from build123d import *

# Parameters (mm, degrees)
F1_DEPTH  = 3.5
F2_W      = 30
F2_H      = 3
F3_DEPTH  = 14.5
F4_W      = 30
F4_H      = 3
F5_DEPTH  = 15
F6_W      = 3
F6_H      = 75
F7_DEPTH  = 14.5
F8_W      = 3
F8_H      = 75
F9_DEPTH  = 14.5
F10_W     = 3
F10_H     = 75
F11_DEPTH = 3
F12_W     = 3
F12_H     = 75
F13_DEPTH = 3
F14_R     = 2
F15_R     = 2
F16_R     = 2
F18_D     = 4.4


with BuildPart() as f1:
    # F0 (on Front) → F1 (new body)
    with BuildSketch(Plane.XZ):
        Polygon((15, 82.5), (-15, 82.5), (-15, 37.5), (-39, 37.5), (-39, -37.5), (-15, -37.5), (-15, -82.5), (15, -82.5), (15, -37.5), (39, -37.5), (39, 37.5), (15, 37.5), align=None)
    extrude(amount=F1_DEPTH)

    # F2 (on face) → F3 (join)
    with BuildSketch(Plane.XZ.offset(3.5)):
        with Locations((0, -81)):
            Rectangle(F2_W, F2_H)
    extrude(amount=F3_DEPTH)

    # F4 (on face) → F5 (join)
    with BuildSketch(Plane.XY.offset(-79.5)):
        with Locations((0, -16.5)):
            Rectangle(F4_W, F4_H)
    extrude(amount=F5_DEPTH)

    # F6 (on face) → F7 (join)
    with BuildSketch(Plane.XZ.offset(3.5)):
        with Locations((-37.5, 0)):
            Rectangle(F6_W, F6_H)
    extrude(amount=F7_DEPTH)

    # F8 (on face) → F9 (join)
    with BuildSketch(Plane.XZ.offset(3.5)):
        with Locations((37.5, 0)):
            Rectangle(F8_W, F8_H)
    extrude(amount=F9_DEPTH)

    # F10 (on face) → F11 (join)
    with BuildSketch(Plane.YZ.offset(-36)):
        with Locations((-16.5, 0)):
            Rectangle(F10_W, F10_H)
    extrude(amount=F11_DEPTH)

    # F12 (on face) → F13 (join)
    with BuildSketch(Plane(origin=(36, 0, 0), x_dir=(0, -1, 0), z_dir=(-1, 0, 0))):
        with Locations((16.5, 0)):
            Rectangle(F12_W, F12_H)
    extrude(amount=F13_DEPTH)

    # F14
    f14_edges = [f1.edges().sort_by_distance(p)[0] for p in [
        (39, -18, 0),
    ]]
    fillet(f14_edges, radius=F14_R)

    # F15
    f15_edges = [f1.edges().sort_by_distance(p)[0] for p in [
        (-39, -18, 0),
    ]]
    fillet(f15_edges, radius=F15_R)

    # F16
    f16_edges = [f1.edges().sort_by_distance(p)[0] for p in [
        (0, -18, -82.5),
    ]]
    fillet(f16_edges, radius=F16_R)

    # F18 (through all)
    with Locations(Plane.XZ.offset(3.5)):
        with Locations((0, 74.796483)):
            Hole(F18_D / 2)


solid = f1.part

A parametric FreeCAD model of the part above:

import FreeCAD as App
import Part
import Sketcher

V = App.Vector


def edges_at(feature, points):
    """Names of the edges that pass closest to the given points."""
    edges = feature.Shape.Edges
    near = lambda p: min(range(len(edges)), key=lambda i: edges[i].distToShape(Part.Vertex(*p))[0])
    return sorted({f"Edge{near(p) + 1}" for p in points})

doc = App.newDocument("Part")
body = doc.addObject("PartDesign::Body", "Body")

# Sketch on XZ plane
sketch1 = body.newObject("Sketcher::SketchObject", "Sketch")
sketch1.AttachmentSupport = (doc.getObject("XZ_Plane"), [""])
sketch1.MapMode = "FlatFace"
sketch1.addGeometry([
    Part.LineSegment(V(15, 82, 0), V(-15, 82, 0)),  # 0
    Part.LineSegment(V(-15, 82, 0), V(-15, 38, 0)),  # 1
    Part.LineSegment(V(-15, 38, 0), V(-39, 38, 0)),  # 2
    Part.LineSegment(V(-39, 38, 0), V(-39, -38, 0)),  # 3
    Part.LineSegment(V(-39, -38, 0), V(-15, -38, 0)),  # 4
    Part.LineSegment(V(-15, -38, 0), V(-15, -82, 0)),  # 5
    Part.LineSegment(V(-15, -82, 0), V(15, -82, 0)),  # 6
    Part.LineSegment(V(15, -82, 0), V(15, -38, 0)),  # 7
    Part.LineSegment(V(15, -38, 0), V(39, -38, 0)),  # 8
    Part.LineSegment(V(39, -38, 0), V(39, 38, 0)),  # 9
    Part.LineSegment(V(39, 38, 0), V(15, 38, 0)),  # 10
    Part.LineSegment(V(15, 38, 0), V(15, 82, 0)),  # 11
], False)
sketch1.addConstraint([
    Sketcher.Constraint("Coincident", 0, 2, 1, 1),
    Sketcher.Constraint("Coincident", 1, 2, 2, 1),
    Sketcher.Constraint("Coincident", 2, 2, 3, 1),
    Sketcher.Constraint("Coincident", 3, 2, 4, 1),
    Sketcher.Constraint("Coincident", 4, 2, 5, 1),
    Sketcher.Constraint("Coincident", 5, 2, 6, 1),
    Sketcher.Constraint("Coincident", 6, 2, 7, 1),
    Sketcher.Constraint("Coincident", 7, 2, 8, 1),
    Sketcher.Constraint("Coincident", 8, 2, 9, 1),
    Sketcher.Constraint("Coincident", 9, 2, 10, 1),
    Sketcher.Constraint("Coincident", 10, 2, 11, 1),
    Sketcher.Constraint("Coincident", 11, 2, 0, 1),
    Sketcher.Constraint("Horizontal", 0),
    Sketcher.Constraint("Vertical", 1),
    Sketcher.Constraint("Horizontal", 2),
    Sketcher.Constraint("Vertical", 3),
    Sketcher.Constraint("Horizontal", 4),
    Sketcher.Constraint("Vertical", 5),
    Sketcher.Constraint("Horizontal", 6),
    Sketcher.Constraint("Vertical", 7),
    Sketcher.Constraint("Horizontal", 8),
    Sketcher.Constraint("Vertical", 9),
    Sketcher.Constraint("Horizontal", 10),
    Sketcher.Constraint("Vertical", 11),
    Sketcher.Constraint("Symmetric", 0, 2, 6, 2, -1, 1),
    Sketcher.Constraint("Symmetric", 2, 2, 8, 2, -1, 1),
    Sketcher.Constraint("Symmetric", 4, 2, 10, 2, -1, 1),
    Sketcher.Constraint("Symmetric", 4, 2, 7, 2, -2),
    Sketcher.Constraint("DistanceX", 0, 2, 0, 1, 30.0),
    Sketcher.Constraint("DistanceX", 2, 2, 2, 1, 24.0),
    Sketcher.Constraint("DistanceY", 1, 2, 1, 1, 45.0),
    Sketcher.Constraint("DistanceY", 3, 2, 3, 1, 75.0),
])
pad1 = body.newObject("PartDesign::Pad", "Pad")
pad1.Profile = sketch1
pad1.Length = 3.5

# Sketch on XZ plane
sketch2 = body.newObject("Sketcher::SketchObject", "Sketch001")
sketch2.AttachmentSupport = (doc.getObject("XZ_Plane"), [""])
sketch2.MapMode = "FlatFace"
sketch2.AttachmentOffset = App.Placement(V(0, 0, 3.5), App.Rotation())
sketch2.addGeometry([
    Part.LineSegment(V(-15, -79.5, 0), V(-15, -82.5, 0)),
    Part.LineSegment(V(-15, -82.5, 0), V(15, -82.5, 0)),
    Part.LineSegment(V(15, -82.5, 0), V(15, -79.5, 0)),
    Part.LineSegment(V(15, -79.5, 0), V(-15, -79.5, 0)),
], False)
sketch2.addConstraint([
    Sketcher.Constraint("Coincident", 0, 2, 1, 1),
    Sketcher.Constraint("Coincident", 1, 2, 2, 1),
    Sketcher.Constraint("Coincident", 2, 2, 3, 1),
    Sketcher.Constraint("Coincident", 3, 2, 0, 1),
    Sketcher.Constraint("Vertical", 0),
    Sketcher.Constraint("Horizontal", 1),
    Sketcher.Constraint("Vertical", 2),
    Sketcher.Constraint("Horizontal", 3),
    Sketcher.Constraint("DistanceX", 1, 1, 1, 2, 30.0),
    Sketcher.Constraint("DistanceY", 0, 2, 0, 1, 3.0),
    Sketcher.Constraint("DistanceX", 0, 2, -1, 1, 15.0),
    Sketcher.Constraint("DistanceY", 0, 2, -1, 1, 82.5),
])
pad2 = body.newObject("PartDesign::Pad", "Pad001")
pad2.Profile = sketch2
pad2.Length = 14.5

# Sketch on XY plane
sketch3 = body.newObject("Sketcher::SketchObject", "Sketch002")
sketch3.AttachmentSupport = (doc.getObject("XY_Plane"), [""])
sketch3.MapMode = "FlatFace"
sketch3.AttachmentOffset = App.Placement(V(0, 0, -79.5), App.Rotation())
sketch3.addGeometry([
    Part.LineSegment(V(-15, -15, 0), V(-15, -18, 0)),
    Part.LineSegment(V(-15, -18, 0), V(15, -18, 0)),
    Part.LineSegment(V(15, -18, 0), V(15, -15, 0)),
    Part.LineSegment(V(15, -15, 0), V(-15, -15, 0)),
], False)
sketch3.addConstraint([
    Sketcher.Constraint("Coincident", 0, 2, 1, 1),
    Sketcher.Constraint("Coincident", 1, 2, 2, 1),
    Sketcher.Constraint("Coincident", 2, 2, 3, 1),
    Sketcher.Constraint("Coincident", 3, 2, 0, 1),
    Sketcher.Constraint("Vertical", 0),
    Sketcher.Constraint("Horizontal", 1),
    Sketcher.Constraint("Vertical", 2),
    Sketcher.Constraint("Horizontal", 3),
    Sketcher.Constraint("DistanceX", 1, 1, 1, 2, 30.0),
    Sketcher.Constraint("DistanceY", 0, 2, 0, 1, 3.0),
    Sketcher.Constraint("DistanceX", 0, 2, -1, 1, 15.0),
    Sketcher.Constraint("DistanceY", 0, 2, -1, 1, 18.0),
])
pad3 = body.newObject("PartDesign::Pad", "Pad002")
pad3.Profile = sketch3
pad3.Length = 15

# Sketch on XZ plane
sketch4 = body.newObject("Sketcher::SketchObject", "Sketch003")
sketch4.AttachmentSupport = (doc.getObject("XZ_Plane"), [""])
sketch4.MapMode = "FlatFace"
sketch4.AttachmentOffset = App.Placement(V(0, 0, 3.5), App.Rotation())
sketch4.addGeometry([
    Part.LineSegment(V(-39, 37.5, 0), V(-39, -37.5, 0)),
    Part.LineSegment(V(-39, -37.5, 0), V(-36, -37.5, 0)),
    Part.LineSegment(V(-36, -37.5, 0), V(-36, 37.5, 0)),
    Part.LineSegment(V(-36, 37.5, 0), V(-39, 37.5, 0)),
], False)
sketch4.addConstraint([
    Sketcher.Constraint("Coincident", 0, 2, 1, 1),
    Sketcher.Constraint("Coincident", 1, 2, 2, 1),
    Sketcher.Constraint("Coincident", 2, 2, 3, 1),
    Sketcher.Constraint("Coincident", 3, 2, 0, 1),
    Sketcher.Constraint("Vertical", 0),
    Sketcher.Constraint("Horizontal", 1),
    Sketcher.Constraint("Vertical", 2),
    Sketcher.Constraint("Horizontal", 3),
    Sketcher.Constraint("DistanceX", 1, 1, 1, 2, 3.0),
    Sketcher.Constraint("DistanceY", 0, 2, 0, 1, 75.0),
    Sketcher.Constraint("DistanceX", 0, 2, -1, 1, 39.0),
    Sketcher.Constraint("DistanceY", 0, 2, -1, 1, 37.5),
])
pad4 = body.newObject("PartDesign::Pad", "Pad003")
pad4.Profile = sketch4
pad4.Length = 14.5

# Sketch on XZ plane
sketch5 = body.newObject("Sketcher::SketchObject", "Sketch004")
sketch5.AttachmentSupport = (doc.getObject("XZ_Plane"), [""])
sketch5.MapMode = "FlatFace"
sketch5.AttachmentOffset = App.Placement(V(0, 0, 3.5), App.Rotation())
sketch5.addGeometry([
    Part.LineSegment(V(36, 37.5, 0), V(36, -37.5, 0)),
    Part.LineSegment(V(36, -37.5, 0), V(39, -37.5, 0)),
    Part.LineSegment(V(39, -37.5, 0), V(39, 37.5, 0)),
    Part.LineSegment(V(39, 37.5, 0), V(36, 37.5, 0)),
], False)
sketch5.addConstraint([
    Sketcher.Constraint("Coincident", 0, 2, 1, 1),
    Sketcher.Constraint("Coincident", 1, 2, 2, 1),
    Sketcher.Constraint("Coincident", 2, 2, 3, 1),
    Sketcher.Constraint("Coincident", 3, 2, 0, 1),
    Sketcher.Constraint("Vertical", 0),
    Sketcher.Constraint("Horizontal", 1),
    Sketcher.Constraint("Vertical", 2),
    Sketcher.Constraint("Horizontal", 3),
    Sketcher.Constraint("DistanceX", 1, 1, 1, 2, 3.0),
    Sketcher.Constraint("DistanceY", 0, 2, 0, 1, 75.0),
    Sketcher.Constraint("DistanceX", -1, 1, 0, 2, 36.0),
    Sketcher.Constraint("DistanceY", 0, 2, -1, 1, 37.5),
])
pad5 = body.newObject("PartDesign::Pad", "Pad004")
pad5.Profile = sketch5
pad5.Length = 14.5

# Sketch on YZ plane
sketch6 = body.newObject("Sketcher::SketchObject", "Sketch005")
sketch6.AttachmentSupport = (doc.getObject("YZ_Plane"), [""])
sketch6.MapMode = "FlatFace"
sketch6.AttachmentOffset = App.Placement(V(0, 0, -36), App.Rotation())
sketch6.addGeometry([
    Part.LineSegment(V(-18, 37.5, 0), V(-18, -37.5, 0)),
    Part.LineSegment(V(-18, -37.5, 0), V(-15, -37.5, 0)),
    Part.LineSegment(V(-15, -37.5, 0), V(-15, 37.5, 0)),
    Part.LineSegment(V(-15, 37.5, 0), V(-18, 37.5, 0)),
], False)
sketch6.addConstraint([
    Sketcher.Constraint("Coincident", 0, 2, 1, 1),
    Sketcher.Constraint("Coincident", 1, 2, 2, 1),
    Sketcher.Constraint("Coincident", 2, 2, 3, 1),
    Sketcher.Constraint("Coincident", 3, 2, 0, 1),
    Sketcher.Constraint("Vertical", 0),
    Sketcher.Constraint("Horizontal", 1),
    Sketcher.Constraint("Vertical", 2),
    Sketcher.Constraint("Horizontal", 3),
    Sketcher.Constraint("DistanceX", 1, 1, 1, 2, 3.0),
    Sketcher.Constraint("DistanceY", 0, 2, 0, 1, 75.0),
    Sketcher.Constraint("DistanceX", 0, 2, -1, 1, 18.0),
    Sketcher.Constraint("DistanceY", 0, 2, -1, 1, 37.5),
])
pad6 = body.newObject("PartDesign::Pad", "Pad005")
pad6.Profile = sketch6
pad6.Length = 3

# Sketch on YZ plane
sketch7 = body.newObject("Sketcher::SketchObject", "Sketch006")
sketch7.AttachmentSupport = (doc.getObject("YZ_Plane"), [""])
sketch7.MapMode = "FlatFace"
sketch7.AttachmentOffset = App.Placement(V(0, 0, 36), App.Rotation())
sketch7.addGeometry([
    Part.LineSegment(V(-15, 37.5, 0), V(-15, -37.5, 0)),
    Part.LineSegment(V(-15, -37.5, 0), V(-18, -37.5, 0)),
    Part.LineSegment(V(-18, -37.5, 0), V(-18, 37.5, 0)),
    Part.LineSegment(V(-18, 37.5, 0), V(-15, 37.5, 0)),
], False)
sketch7.addConstraint([
    Sketcher.Constraint("Coincident", 0, 2, 1, 1),
    Sketcher.Constraint("Coincident", 1, 2, 2, 1),
    Sketcher.Constraint("Coincident", 2, 2, 3, 1),
    Sketcher.Constraint("Coincident", 3, 2, 0, 1),
    Sketcher.Constraint("Vertical", 0),
    Sketcher.Constraint("Horizontal", 1),
    Sketcher.Constraint("Vertical", 2),
    Sketcher.Constraint("Horizontal", 3),
    Sketcher.Constraint("DistanceX", 1, 2, 1, 1, 3.0),
    Sketcher.Constraint("DistanceY", 0, 2, 0, 1, 75.0),
    Sketcher.Constraint("DistanceX", 0, 2, -1, 1, 15.0),
    Sketcher.Constraint("DistanceY", 0, 2, -1, 1, 37.5),
])
pad7 = body.newObject("PartDesign::Pad", "Pad006")
pad7.Profile = sketch7
pad7.Length = 3
pad7.Reversed = True
doc.recompute()

fillet = body.newObject("PartDesign::Fillet", "Fillet")
fillet.Base = (pad7, edges_at(pad7, [(39, -18, 0)]))
fillet.Radius = 2
doc.recompute()

fillet2 = body.newObject("PartDesign::Fillet", "Fillet001")
fillet2.Base = (fillet, edges_at(fillet, [(-39, -18, 0)]))
fillet2.Radius = 2
doc.recompute()

fillet3 = body.newObject("PartDesign::Fillet", "Fillet002")
fillet3.Base = (fillet2, edges_at(fillet2, [(0, -18, -82.5)]))
fillet3.Radius = 2

# Sketch on XZ plane
sketch8 = body.newObject("Sketcher::SketchObject", "Sketch007")
sketch8.AttachmentSupport = (doc.getObject("XZ_Plane"), [""])
sketch8.MapMode = "FlatFace"
sketch8.AttachmentOffset = App.Placement(V(0, 0, 3.5), App.Rotation())
sketch8.addGeometry(Part.Circle(V(0, 74.8, 0), V(0, 0, 1), 2.2), False)
sketch8.addConstraint([
    Sketcher.Constraint("PointOnObject", 0, 3, -2),
    Sketcher.Constraint("Diameter", 0, 4.4),
    Sketcher.Constraint("DistanceY", -1, 1, 0, 3, 74.796483),
])
doc.recompute()
hole = body.newObject("PartDesign::Hole", "Hole")
hole.Profile = sketch8
hole.ThreadType = "None"
hole.Diameter = 4.4
hole.DepthType = "ThroughAll"

doc.recompute()
